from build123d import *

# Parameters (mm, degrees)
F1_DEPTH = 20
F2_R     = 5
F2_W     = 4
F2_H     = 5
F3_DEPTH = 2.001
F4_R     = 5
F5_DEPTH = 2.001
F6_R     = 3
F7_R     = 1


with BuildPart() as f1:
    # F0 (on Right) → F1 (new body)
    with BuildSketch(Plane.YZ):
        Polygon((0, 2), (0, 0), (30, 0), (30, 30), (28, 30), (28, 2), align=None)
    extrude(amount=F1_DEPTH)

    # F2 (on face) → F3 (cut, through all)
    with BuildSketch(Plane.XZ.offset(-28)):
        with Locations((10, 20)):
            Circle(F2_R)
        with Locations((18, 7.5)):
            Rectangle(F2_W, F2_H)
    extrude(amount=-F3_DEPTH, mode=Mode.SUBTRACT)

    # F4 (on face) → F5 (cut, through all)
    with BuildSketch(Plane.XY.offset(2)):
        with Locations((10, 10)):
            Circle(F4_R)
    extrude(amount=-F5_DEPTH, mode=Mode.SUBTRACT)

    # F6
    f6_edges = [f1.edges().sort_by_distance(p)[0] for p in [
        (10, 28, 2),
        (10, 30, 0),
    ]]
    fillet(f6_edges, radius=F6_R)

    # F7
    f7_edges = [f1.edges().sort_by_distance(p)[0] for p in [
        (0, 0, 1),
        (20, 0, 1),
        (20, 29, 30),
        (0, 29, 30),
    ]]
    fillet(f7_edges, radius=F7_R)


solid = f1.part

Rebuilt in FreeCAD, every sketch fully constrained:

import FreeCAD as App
import Part
import Sketcher

V = App.Vector
Q = App.Units.Quantity


def edges_at(feature, points):
    """Names of the edges that pass closest to the given points."""
    edges = feature.Shape.Edges
    near = lambda p: min(range(len(edges)), key=lambda i: edges[i].distToShape(Part.Vertex(*p))[0])
    return sorted({f"Edge{near(p) + 1}" for p in points})


def add_polygon(sketch, points):
    """Adds a closed chain of lines whose ends are joined by coincident constraints."""
    first, n = sketch.GeometryCount, len(points)
    for a, b in zip(points, points[1:] + points[:1]):
        sketch.addGeometry(Part.LineSegment(App.Vector(*a, 0), App.Vector(*b, 0)), False)
    for i in range(n):
        sketch.addConstraint(Sketcher.Constraint("Coincident", first + i, 2, first + (i + 1) % n, 1))

doc = App.newDocument("Part")
params = doc.addObject("Spreadsheet::Sheet", "Params")
for row, (alias, value) in enumerate([
    ("sketch1_width", "30 mm"),
    ("sketch1_width2", "2 mm"),
    ("pad1_length", "20 mm"),
    ("sketch2_diameter", "10 mm"),
    ("sketch2_width", "4 mm"),
    ("sketch2_height", "5 mm"),
    ("sketch3_diameter", "10 mm"),
    ("fillet_radius", "3 mm"),
    ("fillet2_radius", "1 mm"),
], start=1):
    params.set(f"A{row}", alias)
    params.set(f"B{row}", "=" + value)
    params.setAlias(f"B{row}", alias)

body = doc.addObject("PartDesign::Body", "Body")

# Sketch on YZ plane
sketch1 = doc.addObject("Sketcher::SketchObject", "Sketch")
body.addObject(sketch1)
sketch1.AttachmentSupport = (doc.YZ_Plane, [""])
sketch1.MapMode = "FlatFace"
add_polygon(sketch1, [(0, 2), (0, 0), (30, 0), (30, 30), (28, 30), (28, 2)])  # lines 0-5
sketch1.addConstraint(Sketcher.Constraint("Vertical", 0))
sketch1.addConstraint(Sketcher.Constraint("Horizontal", 1))
sketch1.addConstraint(Sketcher.Constraint("Vertical", 2))
sketch1.addConstraint(Sketcher.Constraint("Horizontal", 3))
sketch1.addConstraint(Sketcher.Constraint("Vertical", 4))
sketch1.addConstraint(Sketcher.Constraint("Horizontal", 5))
sketch1.addConstraint(Sketcher.Constraint("Coincident", 0, 2, -1, 1))
sketch1.addConstraint(Sketcher.Constraint("Equal", 3, 0))
sketch1.addConstraint(Sketcher.Constraint("Equal", 1, 2))
sketch1.addConstraint(Sketcher.Constraint("DistanceX", 1, 1, 1, 2, Q("30 mm")))
sketch1.addConstraint(Sketcher.Constraint("DistanceX", 3, 2, 3, 1, Q("2 mm")))
sketch1.setExpression("Constraints[15]", "Params.sketch1_width")
sketch1.setExpression("Constraints[16]", "Params.sketch1_width2")
pad1 = doc.addObject("PartDesign::Pad", "Pad")
body.addObject(pad1)
pad1.Profile = sketch1
pad1.setExpression("Length", "Params.pad1_length")

# Sketch on XZ plane
sketch2 = doc.addObject("Sketcher::SketchObject", "Sketch001")
body.addObject(sketch2)
sketch2.AttachmentSupport = (doc.XZ_Plane, [""])
sketch2.MapMode = "FlatFace"
sketch2.AttachmentOffset = App.Placement(V(0, 0, -28), App.Rotation())
sketch2.addGeometry(Part.Circle(V(10, 20, 0), V(0, 0, 1), 5), False)  # 0
add_polygon(sketch2, [(16, 10), (16, 5), (20, 5), (20, 10)])  # lines 1-4
sketch2.addConstraint(Sketcher.Constraint("Vertical", 1))
sketch2.addConstraint(Sketcher.Constraint("Horizontal", 2))
sketch2.addConstraint(Sketcher.Constraint("Vertical", 3))
sketch2.addConstraint(Sketcher.Constraint("Horizontal", 4))
sketch2.addConstraint(Sketcher.Constraint("Diameter", 0, Q("10 mm")))
sketch2.addConstraint(Sketcher.Constraint("DistanceX", 2, 1, 2, 2, Q("4 mm")))
sketch2.addConstraint(Sketcher.Constraint("DistanceY", 1, 2, 1, 1, Q("5 mm")))
sketch2.addConstraint(Sketcher.Constraint("DistanceX", -1, 1, 0, 3, Q("10 mm")))
sketch2.addConstraint(Sketcher.Constraint("DistanceY", -1, 1, 0, 3, Q("20 mm")))
sketch2.addConstraint(Sketcher.Constraint("DistanceX", -1, 1, 1, 2, Q("16 mm")))
sketch2.addConstraint(Sketcher.Constraint("DistanceY", -1, 1, 1, 2, Q("5 mm")))
sketch2.setExpression("Constraints[8]", "Params.sketch2_diameter")
sketch2.setExpression("Constraints[9]", "Params.sketch2_width")
sketch2.setExpression("Constraints[10]", "Params.sketch2_height")
pocket1 = doc.addObject("PartDesign::Pocket", "Pocket")
body.addObject(pocket1)
pocket1.Profile = sketch2
pocket1.Type = "ThroughAll"

# Sketch on XY plane
sketch3 = doc.addObject("Sketcher::SketchObject", "Sketch002")
body.addObject(sketch3)
sketch3.AttachmentSupport = (doc.XY_Plane, [""])
sketch3.MapMode = "FlatFace"
sketch3.AttachmentOffset = App.Placement(V(0, 0, 2), App.Rotation())
sketch3.addGeometry(Part.Circle(V(10, 10, 0), V(0, 0, 1), 5), False)
sketch3.addConstraint(Sketcher.Constraint("Diameter", 0, Q("10 mm")))
sketch3.addConstraint(Sketcher.Constraint("DistanceX", -1, 1, 0, 3, Q("10 mm")))
sketch3.addConstraint(Sketcher.Constraint("DistanceY", -1, 1, 0, 3, Q("10 mm")))
sketch3.setExpression("Constraints[0]", "Params.sketch3_diameter")
pocket2 = doc.addObject("PartDesign::Pocket", "Pocket001")
body.addObject(pocket2)
pocket2.Profile = sketch3
pocket2.Type = "ThroughAll"
doc.recompute()

fillet = doc.addObject("PartDesign::Fillet", "Fillet")
body.addObject(fillet)
fillet.Base = (pocket2, edges_at(pocket2, [(10, 28, 2), (10, 30, 0)]))
fillet.setExpression("Radius", "Params.fillet_radius")
doc.recompute()

fillet2 = doc.addObject("PartDesign::Fillet", "Fillet001")
body.addObject(fillet2)
fillet2.Base = (fillet, edges_at(fillet, [
    (0, 0, 1),
    (20, 0, 1),
    (20, 29, 30),
    (0, 29, 30),
]))
fillet2.setExpression("Radius", "Params.fillet2_radius")

doc.recompute()
